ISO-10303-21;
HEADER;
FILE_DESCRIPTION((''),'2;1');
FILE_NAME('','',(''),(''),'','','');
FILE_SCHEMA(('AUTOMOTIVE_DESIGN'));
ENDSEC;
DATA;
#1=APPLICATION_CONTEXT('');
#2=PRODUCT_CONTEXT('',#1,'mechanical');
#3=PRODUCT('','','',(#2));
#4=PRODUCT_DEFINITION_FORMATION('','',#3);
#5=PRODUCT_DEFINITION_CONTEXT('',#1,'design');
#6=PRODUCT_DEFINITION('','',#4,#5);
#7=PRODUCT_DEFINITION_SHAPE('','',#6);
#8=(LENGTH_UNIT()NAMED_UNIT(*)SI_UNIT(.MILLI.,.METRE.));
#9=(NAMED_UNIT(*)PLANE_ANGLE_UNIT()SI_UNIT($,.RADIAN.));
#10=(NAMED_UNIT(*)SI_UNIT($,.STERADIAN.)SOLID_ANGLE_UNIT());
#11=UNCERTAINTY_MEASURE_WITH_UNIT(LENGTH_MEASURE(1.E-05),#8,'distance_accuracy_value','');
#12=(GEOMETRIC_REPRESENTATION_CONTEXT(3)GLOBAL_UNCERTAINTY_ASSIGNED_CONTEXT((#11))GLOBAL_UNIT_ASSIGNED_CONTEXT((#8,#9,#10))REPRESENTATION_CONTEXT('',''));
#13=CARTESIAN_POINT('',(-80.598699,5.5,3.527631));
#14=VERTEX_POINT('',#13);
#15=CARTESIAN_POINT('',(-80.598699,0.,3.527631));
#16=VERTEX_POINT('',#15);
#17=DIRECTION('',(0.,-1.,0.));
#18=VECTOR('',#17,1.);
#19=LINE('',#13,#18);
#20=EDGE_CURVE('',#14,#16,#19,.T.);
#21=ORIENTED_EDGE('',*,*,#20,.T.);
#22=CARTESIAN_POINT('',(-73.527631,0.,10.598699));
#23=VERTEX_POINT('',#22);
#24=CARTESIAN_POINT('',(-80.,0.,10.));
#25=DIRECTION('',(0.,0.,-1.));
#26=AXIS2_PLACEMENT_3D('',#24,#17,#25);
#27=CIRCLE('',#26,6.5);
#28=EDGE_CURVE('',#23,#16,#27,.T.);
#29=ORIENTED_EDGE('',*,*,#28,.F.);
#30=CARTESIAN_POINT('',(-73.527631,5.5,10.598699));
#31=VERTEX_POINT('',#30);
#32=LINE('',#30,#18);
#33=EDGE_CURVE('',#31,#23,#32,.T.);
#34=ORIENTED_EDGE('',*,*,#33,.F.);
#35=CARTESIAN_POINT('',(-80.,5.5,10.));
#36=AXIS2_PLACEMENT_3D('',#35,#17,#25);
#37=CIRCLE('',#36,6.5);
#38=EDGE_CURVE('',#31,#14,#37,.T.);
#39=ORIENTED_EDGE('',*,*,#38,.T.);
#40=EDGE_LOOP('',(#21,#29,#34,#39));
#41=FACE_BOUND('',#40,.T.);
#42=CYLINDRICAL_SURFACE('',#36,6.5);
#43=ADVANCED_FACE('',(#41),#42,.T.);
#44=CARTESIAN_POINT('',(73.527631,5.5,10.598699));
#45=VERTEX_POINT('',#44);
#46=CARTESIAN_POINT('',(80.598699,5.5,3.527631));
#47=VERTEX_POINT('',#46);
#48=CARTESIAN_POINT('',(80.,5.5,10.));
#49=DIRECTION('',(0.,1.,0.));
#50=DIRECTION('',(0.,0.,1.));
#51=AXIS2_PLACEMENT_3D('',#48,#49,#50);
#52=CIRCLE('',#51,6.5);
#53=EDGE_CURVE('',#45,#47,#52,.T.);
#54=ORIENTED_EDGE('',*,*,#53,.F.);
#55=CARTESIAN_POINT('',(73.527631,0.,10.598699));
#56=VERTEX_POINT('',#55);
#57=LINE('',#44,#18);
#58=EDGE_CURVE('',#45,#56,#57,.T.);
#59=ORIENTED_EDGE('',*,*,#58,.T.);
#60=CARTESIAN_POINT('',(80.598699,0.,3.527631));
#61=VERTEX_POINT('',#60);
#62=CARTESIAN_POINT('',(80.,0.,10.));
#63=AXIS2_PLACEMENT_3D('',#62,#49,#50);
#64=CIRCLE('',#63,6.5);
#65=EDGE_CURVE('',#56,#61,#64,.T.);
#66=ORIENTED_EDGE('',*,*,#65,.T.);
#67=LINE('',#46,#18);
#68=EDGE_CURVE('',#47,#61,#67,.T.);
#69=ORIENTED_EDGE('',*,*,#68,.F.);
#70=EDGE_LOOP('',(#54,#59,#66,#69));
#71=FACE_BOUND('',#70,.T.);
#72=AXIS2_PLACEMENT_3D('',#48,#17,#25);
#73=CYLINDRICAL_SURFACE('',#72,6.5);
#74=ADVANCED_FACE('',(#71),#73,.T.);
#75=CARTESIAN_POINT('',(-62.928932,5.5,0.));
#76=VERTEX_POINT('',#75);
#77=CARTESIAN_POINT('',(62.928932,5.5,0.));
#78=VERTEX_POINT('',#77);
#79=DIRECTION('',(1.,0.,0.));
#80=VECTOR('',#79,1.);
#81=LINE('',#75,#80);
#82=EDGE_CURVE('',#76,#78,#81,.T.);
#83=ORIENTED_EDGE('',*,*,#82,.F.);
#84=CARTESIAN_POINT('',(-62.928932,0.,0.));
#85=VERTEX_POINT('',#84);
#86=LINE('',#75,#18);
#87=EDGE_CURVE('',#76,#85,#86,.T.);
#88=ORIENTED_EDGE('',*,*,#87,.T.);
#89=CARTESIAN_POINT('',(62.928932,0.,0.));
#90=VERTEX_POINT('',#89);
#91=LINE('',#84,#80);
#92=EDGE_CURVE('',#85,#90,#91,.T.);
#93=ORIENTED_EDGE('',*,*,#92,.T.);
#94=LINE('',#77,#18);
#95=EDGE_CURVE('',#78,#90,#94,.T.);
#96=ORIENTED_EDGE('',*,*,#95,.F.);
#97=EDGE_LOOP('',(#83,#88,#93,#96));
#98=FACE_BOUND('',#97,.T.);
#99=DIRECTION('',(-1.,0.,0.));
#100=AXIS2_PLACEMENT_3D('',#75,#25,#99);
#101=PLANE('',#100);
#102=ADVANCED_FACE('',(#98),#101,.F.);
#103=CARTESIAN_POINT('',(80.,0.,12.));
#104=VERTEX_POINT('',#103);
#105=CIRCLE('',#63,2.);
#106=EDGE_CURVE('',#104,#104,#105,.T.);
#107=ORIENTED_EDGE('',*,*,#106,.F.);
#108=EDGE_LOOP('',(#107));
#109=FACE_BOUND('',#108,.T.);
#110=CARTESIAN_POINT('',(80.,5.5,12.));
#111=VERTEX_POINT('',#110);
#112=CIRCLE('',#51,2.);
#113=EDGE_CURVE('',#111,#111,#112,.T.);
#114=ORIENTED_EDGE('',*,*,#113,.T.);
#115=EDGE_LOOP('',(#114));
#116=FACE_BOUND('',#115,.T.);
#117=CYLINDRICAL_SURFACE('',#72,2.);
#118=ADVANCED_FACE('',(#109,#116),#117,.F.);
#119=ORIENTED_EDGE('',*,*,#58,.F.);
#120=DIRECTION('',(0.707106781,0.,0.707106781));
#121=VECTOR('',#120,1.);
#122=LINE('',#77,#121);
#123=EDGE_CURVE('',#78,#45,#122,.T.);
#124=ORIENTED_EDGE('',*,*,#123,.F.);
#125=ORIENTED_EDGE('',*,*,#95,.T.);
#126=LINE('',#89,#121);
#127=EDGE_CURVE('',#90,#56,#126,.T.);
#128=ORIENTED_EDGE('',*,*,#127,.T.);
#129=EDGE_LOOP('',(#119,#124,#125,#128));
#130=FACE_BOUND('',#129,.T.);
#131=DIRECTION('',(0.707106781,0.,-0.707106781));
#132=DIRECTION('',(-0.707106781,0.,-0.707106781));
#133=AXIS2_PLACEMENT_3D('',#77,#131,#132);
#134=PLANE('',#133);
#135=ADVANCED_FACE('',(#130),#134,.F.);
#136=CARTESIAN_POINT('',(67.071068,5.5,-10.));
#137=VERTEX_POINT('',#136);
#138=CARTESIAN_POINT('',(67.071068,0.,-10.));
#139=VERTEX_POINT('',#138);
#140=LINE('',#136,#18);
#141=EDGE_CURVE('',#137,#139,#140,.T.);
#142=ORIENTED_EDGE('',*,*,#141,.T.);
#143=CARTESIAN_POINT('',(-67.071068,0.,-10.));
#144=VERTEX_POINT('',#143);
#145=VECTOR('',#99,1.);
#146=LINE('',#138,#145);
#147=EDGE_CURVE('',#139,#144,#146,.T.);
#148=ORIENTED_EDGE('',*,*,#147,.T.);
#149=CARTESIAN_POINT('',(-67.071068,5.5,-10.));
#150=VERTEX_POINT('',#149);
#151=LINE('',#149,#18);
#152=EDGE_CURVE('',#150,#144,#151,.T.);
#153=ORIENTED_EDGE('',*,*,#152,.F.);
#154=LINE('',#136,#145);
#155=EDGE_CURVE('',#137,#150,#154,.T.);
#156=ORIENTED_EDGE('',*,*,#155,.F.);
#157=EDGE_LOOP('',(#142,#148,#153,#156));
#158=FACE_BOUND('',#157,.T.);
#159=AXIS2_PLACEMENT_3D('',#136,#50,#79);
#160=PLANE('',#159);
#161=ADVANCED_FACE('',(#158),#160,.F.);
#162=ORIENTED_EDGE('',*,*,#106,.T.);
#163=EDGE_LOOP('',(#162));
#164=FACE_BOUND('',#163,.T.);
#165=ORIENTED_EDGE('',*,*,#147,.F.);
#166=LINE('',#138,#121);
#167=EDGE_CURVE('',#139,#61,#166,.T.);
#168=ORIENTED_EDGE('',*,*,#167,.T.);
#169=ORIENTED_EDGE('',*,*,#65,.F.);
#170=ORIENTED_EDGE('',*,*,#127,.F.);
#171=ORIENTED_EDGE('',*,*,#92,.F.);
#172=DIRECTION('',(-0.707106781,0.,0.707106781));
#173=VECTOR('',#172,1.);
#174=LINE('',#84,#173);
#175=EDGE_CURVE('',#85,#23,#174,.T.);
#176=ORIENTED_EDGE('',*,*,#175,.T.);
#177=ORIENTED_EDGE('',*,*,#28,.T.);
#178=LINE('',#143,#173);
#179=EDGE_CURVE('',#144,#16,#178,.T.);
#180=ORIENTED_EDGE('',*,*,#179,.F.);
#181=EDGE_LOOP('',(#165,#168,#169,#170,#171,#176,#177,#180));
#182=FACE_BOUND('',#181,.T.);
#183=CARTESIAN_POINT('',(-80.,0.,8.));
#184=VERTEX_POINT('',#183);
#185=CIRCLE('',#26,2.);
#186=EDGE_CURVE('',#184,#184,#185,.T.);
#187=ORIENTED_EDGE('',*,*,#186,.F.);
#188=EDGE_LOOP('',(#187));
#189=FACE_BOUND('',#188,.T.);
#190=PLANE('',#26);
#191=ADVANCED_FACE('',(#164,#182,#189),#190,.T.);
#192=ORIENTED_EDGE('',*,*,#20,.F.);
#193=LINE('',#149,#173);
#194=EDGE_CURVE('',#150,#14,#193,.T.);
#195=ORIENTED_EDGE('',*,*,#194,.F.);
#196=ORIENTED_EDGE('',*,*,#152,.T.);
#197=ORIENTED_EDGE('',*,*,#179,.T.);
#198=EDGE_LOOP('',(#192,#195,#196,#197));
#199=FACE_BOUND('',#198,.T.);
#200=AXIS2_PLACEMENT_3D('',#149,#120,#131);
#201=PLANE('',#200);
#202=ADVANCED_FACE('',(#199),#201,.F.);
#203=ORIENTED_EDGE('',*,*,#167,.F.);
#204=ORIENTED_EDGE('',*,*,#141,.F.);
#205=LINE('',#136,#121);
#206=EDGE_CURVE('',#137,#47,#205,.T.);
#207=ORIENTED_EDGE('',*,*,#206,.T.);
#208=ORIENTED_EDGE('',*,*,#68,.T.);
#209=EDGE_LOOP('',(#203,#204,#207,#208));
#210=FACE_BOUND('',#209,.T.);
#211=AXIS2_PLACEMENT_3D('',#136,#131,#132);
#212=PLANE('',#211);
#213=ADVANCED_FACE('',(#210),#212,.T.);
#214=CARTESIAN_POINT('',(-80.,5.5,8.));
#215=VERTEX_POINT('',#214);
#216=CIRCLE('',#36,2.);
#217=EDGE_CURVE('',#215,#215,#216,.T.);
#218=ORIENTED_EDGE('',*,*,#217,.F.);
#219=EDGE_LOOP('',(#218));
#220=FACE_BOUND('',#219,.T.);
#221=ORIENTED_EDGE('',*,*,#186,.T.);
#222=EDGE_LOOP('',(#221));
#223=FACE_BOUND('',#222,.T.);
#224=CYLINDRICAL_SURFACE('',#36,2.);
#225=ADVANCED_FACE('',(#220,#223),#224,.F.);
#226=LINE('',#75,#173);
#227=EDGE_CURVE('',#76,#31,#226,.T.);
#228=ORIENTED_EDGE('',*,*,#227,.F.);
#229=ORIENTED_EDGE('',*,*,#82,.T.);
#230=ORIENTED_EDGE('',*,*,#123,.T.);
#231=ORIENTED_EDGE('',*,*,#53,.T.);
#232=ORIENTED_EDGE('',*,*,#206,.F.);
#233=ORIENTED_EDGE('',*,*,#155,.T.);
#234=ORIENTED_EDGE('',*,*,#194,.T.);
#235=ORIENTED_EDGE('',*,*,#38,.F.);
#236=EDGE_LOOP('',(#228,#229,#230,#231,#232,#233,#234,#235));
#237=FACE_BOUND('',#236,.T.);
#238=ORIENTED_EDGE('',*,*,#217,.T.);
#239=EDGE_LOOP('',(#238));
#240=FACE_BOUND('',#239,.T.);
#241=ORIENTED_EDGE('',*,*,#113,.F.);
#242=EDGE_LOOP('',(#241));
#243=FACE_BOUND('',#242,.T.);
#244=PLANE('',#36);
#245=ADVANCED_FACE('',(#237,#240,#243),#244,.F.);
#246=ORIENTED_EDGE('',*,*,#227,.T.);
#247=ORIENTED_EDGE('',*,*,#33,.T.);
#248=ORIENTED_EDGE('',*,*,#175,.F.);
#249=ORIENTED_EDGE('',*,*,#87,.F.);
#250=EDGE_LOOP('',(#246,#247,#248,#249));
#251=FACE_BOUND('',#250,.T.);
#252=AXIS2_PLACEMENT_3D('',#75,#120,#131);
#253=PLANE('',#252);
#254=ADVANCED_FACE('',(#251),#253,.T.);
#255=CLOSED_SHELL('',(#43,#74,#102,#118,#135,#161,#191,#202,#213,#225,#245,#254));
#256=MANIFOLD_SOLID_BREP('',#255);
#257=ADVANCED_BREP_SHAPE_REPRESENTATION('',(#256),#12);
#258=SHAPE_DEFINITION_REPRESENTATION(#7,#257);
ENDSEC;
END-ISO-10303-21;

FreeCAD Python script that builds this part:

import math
import FreeCAD as App
import Part
import Sketcher

doc = App.newDocument("Part")
params = doc.addObject("Spreadsheet::Sheet", "Params")
for row, (alias, value) in enumerate([
    ("sketch1_diameter", "4 mm"),
    ("sketch1_radius", "6.5 mm"),
    ("pad1_length", "5.5 mm"),
], start=1):
    params.set(f"A{row}", alias)
    params.set(f"B{row}", "=" + value)
    params.setAlias(f"B{row}", alias)

body = doc.addObject("PartDesign::Body", "Body")

# Sketch on XZ plane
sketch1 = doc.addObject("Sketcher::SketchObject", "Sketch")
body.addObject(sketch1)
sketch1.AttachmentSupport = (doc.XZ_Plane, [""])
sketch1.MapMode = "FlatFace"
sketch1.addGeometry(Part.LineSegment(App.Vector(-62.9, 0, 0), App.Vector(62.9, 0, 0)), False)
sketch1.addGeometry(Part.LineSegment(App.Vector(62.9, 0, 0), App.Vector(73.5, 10.6, 0)), False)
sketch1.addGeometry(Part.ArcOfCircle(Part.Circle(App.Vector(80, 10, 0), App.Vector(0, 0, 1), 6.5), math.radians(-85), math.radians(175)), False)
sketch1.addGeometry(Part.LineSegment(App.Vector(80.6, 3.5, 0), App.Vector(67.1, -10, 0)), False)
sketch1.addGeometry(Part.LineSegment(App.Vector(67.1, -10, 0), App.Vector(-67.1, -10, 0)), False)
sketch1.addGeometry(Part.LineSegment(App.Vector(-67.1, -10, 0), App.Vector(-80.6, 3.5, 0)), False)
sketch1.addGeometry(Part.ArcOfCircle(Part.Circle(App.Vector(-80, 10, 0), App.Vector(0, 0, 1), 6.5), math.radians(5), math.radians(265)), False)
sketch1.addGeometry(Part.LineSegment(App.Vector(-73.5, 10.6, 0), App.Vector(-62.9, 0, 0)), False)
sketch1.addGeometry(Part.Circle(App.Vector(-80, 10, 0), App.Vector(0, 0, 1), 2), False)
sketch1.addGeometry(Part.Circle(App.Vector(80, 10, 0), App.Vector(0, 0, 1), 2), False)
sketch1.addConstraint(Sketcher.Constraint("Coincident", 0, 2, 1, 1))
sketch1.addConstraint(Sketcher.Constraint("Coincident", 1, 2, 2, 2))
sketch1.addConstraint(Sketcher.Constraint("Coincident", 2, 1, 3, 1))
sketch1.addConstraint(Sketcher.Constraint("Coincident", 3, 2, 4, 1))
sketch1.addConstraint(Sketcher.Constraint("Coincident", 4, 2, 5, 1))
sketch1.addConstraint(Sketcher.Constraint("Coincident", 5, 2, 6, 2))
sketch1.addConstraint(Sketcher.Constraint("Coincident", 6, 1, 7, 1))
sketch1.addConstraint(Sketcher.Constraint("Coincident", 7, 2, 0, 1))
sketch1.addConstraint(Sketcher.Constraint("Horizontal", 0))
sketch1.addConstraint(Sketcher.Constraint("Horizontal", 4))
sketch1.addConstraint(Sketcher.Constraint("Coincident", 8, 3, 6, 3))
sketch1.addConstraint(Sketcher.Constraint("Coincident", 9, 3, 2, 3))
sketch1.addConstraint(Sketcher.Constraint("Equal", 2, 6))
sketch1.addConstraint(Sketcher.Constraint("Equal", 8, 9))
sketch1.addConstraint(Sketcher.Constraint("Symmetric", 0, 2, 7, 2, -1, 1))
sketch1.addConstraint(Sketcher.Constraint("Symmetric", 2, 3, 6, 3, -2))
sketch1.addConstraint(Sketcher.Constraint("Parallel", 1, 3))
sketch1.addConstraint(Sketcher.Constraint("Perpendicular", 3, 5))
sketch1.addConstraint(Sketcher.Constraint("Parallel", 5, 7))
sketch1.addConstraint(Sketcher.Constraint("Horizontal", 2, 1, 5, 2))
sketch1.addConstraint(Sketcher.Constraint("Horizontal", 1, 2, 6, 1))
sketch1.addConstraint(Sketcher.Constraint("Diameter", 8, 4.0))
sketch1.addConstraint(Sketcher.Constraint("Radius", 2, 6.5))
sketch1.addConstraint(Sketcher.Constraint("DistanceX", -1, 1, 2, 3, 80.0))
sketch1.addConstraint(Sketcher.Constraint("DistanceY", -1, 1, 2, 3, 10.0))
sketch1.addConstraint(Sketcher.Constraint("DistanceY", 3, 2, -1, 1, 10.0))
sketch1.addConstraint(Sketcher.Constraint("DistanceX", 4, 2, 0, 2, 130.0))
sketch1.addConstraint(Sketcher.Constraint("DistanceY", -1, 1, 1, 2, 10.598699))
sketch1.setExpression("Constraints[21]", "Params.sketch1_diameter")
sketch1.setExpression("Constraints[22]", "Params.sketch1_radius")
pad1 = doc.addObject("PartDesign::Pad", "Pad")
body.addObject(pad1)
pad1.Profile = sketch1
pad1.setExpression("Length", "Params.pad1_length")
pad1.Reversed = True

doc.recompute()
